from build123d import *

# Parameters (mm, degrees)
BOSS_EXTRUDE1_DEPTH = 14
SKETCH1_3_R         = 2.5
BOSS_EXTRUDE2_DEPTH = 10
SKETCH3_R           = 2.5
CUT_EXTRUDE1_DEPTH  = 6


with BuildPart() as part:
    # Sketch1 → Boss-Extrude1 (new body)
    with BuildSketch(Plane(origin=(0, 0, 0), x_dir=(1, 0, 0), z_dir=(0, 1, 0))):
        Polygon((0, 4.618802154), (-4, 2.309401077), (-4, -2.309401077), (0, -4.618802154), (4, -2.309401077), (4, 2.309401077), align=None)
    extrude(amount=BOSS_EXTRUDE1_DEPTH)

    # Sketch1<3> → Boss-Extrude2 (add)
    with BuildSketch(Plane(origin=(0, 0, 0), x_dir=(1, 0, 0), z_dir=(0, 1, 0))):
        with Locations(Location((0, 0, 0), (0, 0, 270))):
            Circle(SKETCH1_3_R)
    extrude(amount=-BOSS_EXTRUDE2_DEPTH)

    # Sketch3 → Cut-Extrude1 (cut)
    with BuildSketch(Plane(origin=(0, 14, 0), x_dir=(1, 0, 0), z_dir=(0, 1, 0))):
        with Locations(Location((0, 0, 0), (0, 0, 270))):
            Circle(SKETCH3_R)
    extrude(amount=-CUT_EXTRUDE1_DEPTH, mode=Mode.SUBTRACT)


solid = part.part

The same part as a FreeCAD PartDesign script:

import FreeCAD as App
import Part
import Sketcher
Q = App.Units.Quantity

doc = App.newDocument("Part")
body = doc.addObject("PartDesign::Body", "Body")

# Sketch on XZ plane
sketch1 = doc.addObject("Sketcher::SketchObject", "Sketch")
body.addObject(sketch1)
sketch1.AttachmentSupport = (doc.XZ_Plane, [""])
sketch1.MapMode = "FlatFace"
sketch1.addGeometry(Part.LineSegment(App.Vector(0, -4.6, 0), App.Vector(-4, -2.3, 0)), False)
sketch1.addGeometry(Part.LineSegment(App.Vector(-4, -2.3, 0), App.Vector(-4, 2.3, 0)), False)
sketch1.addGeometry(Part.LineSegment(App.Vector(-4, 2.3, 0), App.Vector(0, 4.6, 0)), False)
sketch1.addGeometry(Part.LineSegment(App.Vector(0, 4.6, 0), App.Vector(4, 2.3, 0)), False)
sketch1.addGeometry(Part.LineSegment(App.Vector(4, 2.3, 0), App.Vector(4, -2.3, 0)), False)
sketch1.addGeometry(Part.LineSegment(App.Vector(4, -2.3, 0), App.Vector(0, -4.6, 0)), False)
sketch1.addConstraint(Sketcher.Constraint("Coincident", 0, 2, 1, 1))
sketch1.addConstraint(Sketcher.Constraint("Coincident", 1, 2, 2, 1))
sketch1.addConstraint(Sketcher.Constraint("Coincident", 2, 2, 3, 1))
sketch1.addConstraint(Sketcher.Constraint("Coincident", 3, 2, 4, 1))
sketch1.addConstraint(Sketcher.Constraint("Coincident", 4, 2, 5, 1))
sketch1.addConstraint(Sketcher.Constraint("Coincident", 5, 2, 0, 1))
sketch1.addConstraint(Sketcher.Constraint("Vertical", 1))
sketch1.addConstraint(Sketcher.Constraint("Vertical", 4))
sketch1.addConstraint(Sketcher.Constraint("Symmetric", 0, 2, 3, 2, -1, 1))
sketch1.addConstraint(Sketcher.Constraint("Symmetric", 2, 2, 5, 2, -1, 1))
sketch1.addConstraint(Sketcher.Constraint("PointOnObject", 2, 2, -2))
sketch1.addConstraint(Sketcher.Constraint("Parallel", 2, 5))
sketch1.addConstraint(Sketcher.Constraint("Horizontal", 1, 2, 3, 2))
sketch1.addConstraint(Sketcher.Constraint("Angle", 0, Q("150 deg")))
sketch1.addConstraint(Sketcher.Constraint("DistanceX", 0, 2, -1, 1, Q("4 mm")))
sketch1.addConstraint(Sketcher.Constraint("DistanceY", 0, 2, -1, 1, Q("2.309401 mm")))
pad1 = doc.addObject("PartDesign::Pad", "Pad")
body.addObject(pad1)
pad1.Profile = sketch1
pad1.Length = 14
pad1.Reversed = True

# Sketch on XZ plane
sketch2 = doc.addObject("Sketcher::SketchObject", "Sketch001")
body.addObject(sketch2)
sketch2.AttachmentSupport = (doc.XZ_Plane, [""])
sketch2.MapMode = "FlatFace"
sketch2.addGeometry(Part.Circle(App.Vector(0, 0, 0), App.Vector(0, 0, 1), 2.5), False)
sketch2.addConstraint(Sketcher.Constraint("Coincident", 0, 3, -1, 1))
sketch2.addConstraint(Sketcher.Constraint("Diameter", 0, Q("5 mm")))
pad2 = doc.addObject("PartDesign::Pad", "Pad001")
body.addObject(pad2)
pad2.Profile = sketch2
pad2.Length = 10

# Sketch on XZ plane
sketch3 = doc.addObject("Sketcher::SketchObject", "Sketch002")
body.addObject(sketch3)
sketch3.AttachmentSupport = (doc.XZ_Plane, [""])
sketch3.MapMode = "FlatFace"
sketch3.AttachmentOffset = App.Placement(App.Vector(0, 0, -14), App.Rotation())
sketch3.addGeometry(Part.Circle(App.Vector(0, 0, 0), App.Vector(0, 0, 1), 2.5), False)
sketch3.addConstraint(Sketcher.Constraint("Coincident", 0, 3, -1, 1))
sketch3.addConstraint(Sketcher.Constraint("Diameter", 0, Q("5 mm")))
pocket1 = doc.addObject("PartDesign::Pocket", "Pocket")
body.addObject(pocket1)
pocket1.Profile = sketch3
pocket1.Length = 6
pocket1.Reversed = True

doc.recompute()
